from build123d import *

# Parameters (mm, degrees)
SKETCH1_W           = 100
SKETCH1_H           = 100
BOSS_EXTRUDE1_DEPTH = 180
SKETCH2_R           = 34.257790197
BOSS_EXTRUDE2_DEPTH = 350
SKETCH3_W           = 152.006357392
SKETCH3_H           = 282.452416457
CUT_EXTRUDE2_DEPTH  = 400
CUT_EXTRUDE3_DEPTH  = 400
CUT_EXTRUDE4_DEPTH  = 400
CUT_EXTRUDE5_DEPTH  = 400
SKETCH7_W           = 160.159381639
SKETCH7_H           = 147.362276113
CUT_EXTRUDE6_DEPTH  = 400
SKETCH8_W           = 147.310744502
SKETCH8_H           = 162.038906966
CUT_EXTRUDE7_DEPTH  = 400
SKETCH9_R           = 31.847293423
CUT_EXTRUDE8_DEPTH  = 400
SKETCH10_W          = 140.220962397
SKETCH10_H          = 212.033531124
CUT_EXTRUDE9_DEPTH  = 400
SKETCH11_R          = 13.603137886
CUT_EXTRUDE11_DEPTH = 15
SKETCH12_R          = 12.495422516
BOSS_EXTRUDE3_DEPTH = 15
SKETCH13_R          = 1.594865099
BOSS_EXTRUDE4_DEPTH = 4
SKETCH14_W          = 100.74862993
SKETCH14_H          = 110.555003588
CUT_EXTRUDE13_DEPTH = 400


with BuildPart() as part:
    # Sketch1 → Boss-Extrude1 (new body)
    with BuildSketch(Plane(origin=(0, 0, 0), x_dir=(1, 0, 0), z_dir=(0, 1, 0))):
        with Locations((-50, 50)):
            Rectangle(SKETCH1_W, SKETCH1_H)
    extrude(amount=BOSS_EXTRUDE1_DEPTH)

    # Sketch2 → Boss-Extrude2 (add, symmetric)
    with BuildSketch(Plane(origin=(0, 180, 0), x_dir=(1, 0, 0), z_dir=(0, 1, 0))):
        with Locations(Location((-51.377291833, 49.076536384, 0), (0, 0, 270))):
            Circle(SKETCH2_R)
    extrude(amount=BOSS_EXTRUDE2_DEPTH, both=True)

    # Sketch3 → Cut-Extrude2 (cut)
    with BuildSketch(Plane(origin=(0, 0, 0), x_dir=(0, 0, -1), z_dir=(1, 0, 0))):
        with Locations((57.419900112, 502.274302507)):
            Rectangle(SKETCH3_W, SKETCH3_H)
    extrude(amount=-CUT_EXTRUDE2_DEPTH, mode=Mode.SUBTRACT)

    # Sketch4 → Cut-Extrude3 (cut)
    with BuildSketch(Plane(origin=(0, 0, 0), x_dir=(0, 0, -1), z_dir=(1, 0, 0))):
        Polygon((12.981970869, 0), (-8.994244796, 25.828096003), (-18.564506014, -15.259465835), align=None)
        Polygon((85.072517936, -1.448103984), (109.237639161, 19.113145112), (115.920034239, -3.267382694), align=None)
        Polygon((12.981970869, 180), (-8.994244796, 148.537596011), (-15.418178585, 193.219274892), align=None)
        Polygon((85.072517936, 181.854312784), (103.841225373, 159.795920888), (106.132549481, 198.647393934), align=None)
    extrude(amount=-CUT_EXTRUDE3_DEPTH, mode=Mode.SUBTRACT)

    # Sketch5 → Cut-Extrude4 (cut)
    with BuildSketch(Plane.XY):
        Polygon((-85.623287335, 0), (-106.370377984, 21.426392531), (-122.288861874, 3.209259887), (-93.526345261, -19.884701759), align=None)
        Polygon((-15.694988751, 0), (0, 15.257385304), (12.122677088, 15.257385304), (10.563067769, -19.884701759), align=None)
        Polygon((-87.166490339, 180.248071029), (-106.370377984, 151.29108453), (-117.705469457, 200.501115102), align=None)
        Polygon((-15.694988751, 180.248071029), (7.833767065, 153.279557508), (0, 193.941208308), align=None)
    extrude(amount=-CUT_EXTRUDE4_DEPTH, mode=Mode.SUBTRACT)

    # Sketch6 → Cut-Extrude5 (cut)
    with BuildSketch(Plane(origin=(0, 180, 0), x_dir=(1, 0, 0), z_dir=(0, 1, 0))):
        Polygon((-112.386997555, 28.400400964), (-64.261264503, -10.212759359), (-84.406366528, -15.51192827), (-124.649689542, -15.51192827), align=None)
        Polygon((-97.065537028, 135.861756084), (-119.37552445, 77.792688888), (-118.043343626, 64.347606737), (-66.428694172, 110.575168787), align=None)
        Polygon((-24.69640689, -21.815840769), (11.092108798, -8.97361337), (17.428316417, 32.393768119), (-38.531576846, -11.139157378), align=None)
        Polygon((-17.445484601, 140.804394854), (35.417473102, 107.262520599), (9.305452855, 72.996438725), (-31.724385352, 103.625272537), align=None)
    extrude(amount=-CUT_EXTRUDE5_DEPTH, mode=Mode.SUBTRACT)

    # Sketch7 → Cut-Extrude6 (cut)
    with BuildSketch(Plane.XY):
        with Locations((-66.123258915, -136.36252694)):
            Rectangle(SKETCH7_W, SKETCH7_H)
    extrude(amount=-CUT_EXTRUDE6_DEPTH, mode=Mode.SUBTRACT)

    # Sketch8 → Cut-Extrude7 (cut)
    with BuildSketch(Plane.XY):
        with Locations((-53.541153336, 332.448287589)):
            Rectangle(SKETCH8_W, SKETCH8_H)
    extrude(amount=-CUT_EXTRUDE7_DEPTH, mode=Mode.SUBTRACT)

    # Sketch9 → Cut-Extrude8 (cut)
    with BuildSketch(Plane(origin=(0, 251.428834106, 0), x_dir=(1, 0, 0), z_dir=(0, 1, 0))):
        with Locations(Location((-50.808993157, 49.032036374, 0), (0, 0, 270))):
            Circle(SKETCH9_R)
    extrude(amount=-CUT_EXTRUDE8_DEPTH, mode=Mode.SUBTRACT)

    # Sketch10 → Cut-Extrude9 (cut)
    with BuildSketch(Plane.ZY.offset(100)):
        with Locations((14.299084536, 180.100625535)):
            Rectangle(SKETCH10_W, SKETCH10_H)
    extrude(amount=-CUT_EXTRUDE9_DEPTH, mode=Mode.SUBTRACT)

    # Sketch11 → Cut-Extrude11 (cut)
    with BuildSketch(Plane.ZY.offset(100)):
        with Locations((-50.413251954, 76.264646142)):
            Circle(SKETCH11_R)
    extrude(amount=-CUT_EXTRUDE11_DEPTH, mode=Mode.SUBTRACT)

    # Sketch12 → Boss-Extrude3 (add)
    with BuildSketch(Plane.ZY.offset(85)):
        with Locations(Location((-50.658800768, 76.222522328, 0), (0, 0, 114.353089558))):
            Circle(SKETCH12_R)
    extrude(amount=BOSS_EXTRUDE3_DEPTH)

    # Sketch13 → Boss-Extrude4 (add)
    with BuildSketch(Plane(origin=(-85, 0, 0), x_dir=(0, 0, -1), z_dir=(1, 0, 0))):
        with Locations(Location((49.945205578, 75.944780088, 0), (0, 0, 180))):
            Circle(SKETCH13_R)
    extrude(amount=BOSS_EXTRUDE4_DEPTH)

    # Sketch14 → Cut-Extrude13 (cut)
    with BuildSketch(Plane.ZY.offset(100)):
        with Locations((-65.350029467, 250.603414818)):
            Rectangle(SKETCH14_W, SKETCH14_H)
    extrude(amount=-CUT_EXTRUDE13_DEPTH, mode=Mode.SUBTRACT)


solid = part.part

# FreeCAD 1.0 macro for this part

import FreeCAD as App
import Part
import Sketcher
from FreeCAD import Vector
Q = App.Units.Quantity


def add_polygon(sketch, points):
    """Adds a closed chain of lines whose ends are joined by coincident constraints."""
    first, n = sketch.GeometryCount, len(points)
    for a, b in zip(points, points[1:] + points[:1]):
        sketch.addGeometry(Part.LineSegment(App.Vector(*a, 0), App.Vector(*b, 0)), False)
    for i in range(n):
        sketch.addConstraint(Sketcher.Constraint("Coincident", first + i, 2, first + (i + 1) % n, 1))

doc = App.newDocument("Part")
body = doc.addObject("PartDesign::Body", "Body")

# Sketch on XZ plane
sketch1 = doc.addObject("Sketcher::SketchObject", "Sketch")
body.addObject(sketch1)
sketch1.AttachmentSupport = (doc.XZ_Plane, [""])
sketch1.MapMode = "FlatFace"
add_polygon(sketch1, [(-100, -100), (-100, 0), (0, 0), (0, -100)])  # lines 0-3
sketch1.addConstraint(Sketcher.Constraint("Vertical", 0))
sketch1.addConstraint(Sketcher.Constraint("Horizontal", 1))
sketch1.addConstraint(Sketcher.Constraint("Vertical", 2))
sketch1.addConstraint(Sketcher.Constraint("Horizontal", 3))
sketch1.addConstraint(Sketcher.Constraint("Coincident", 1, 2, -1, 1))
sketch1.addConstraint(Sketcher.Constraint("Equal", 3, 0))
sketch1.addConstraint(Sketcher.Constraint("DistanceX", 1, 1, 1, 2, Q("100 mm")))
pad1 = doc.addObject("PartDesign::Pad", "Pad")
body.addObject(pad1)
pad1.Profile = sketch1
pad1.Length = 180
pad1.Reversed = True

# Sketch on XZ plane
sketch2 = doc.addObject("Sketcher::SketchObject", "Sketch001")
body.addObject(sketch2)
sketch2.AttachmentSupport = (doc.XZ_Plane, [""])
sketch2.MapMode = "FlatFace"
sketch2.AttachmentOffset = App.Placement(Vector(0, 0, -180), App.Rotation())
sketch2.addGeometry(Part.Circle(Vector(-51, -49, 0), Vector(0, 0, 1), 34), False)
sketch2.addConstraint(Sketcher.Constraint("Diameter", 0, Q("68.51558 mm")))
sketch2.addConstraint(Sketcher.Constraint("DistanceX", 0, 3, -1, 1, Q("51.377292 mm")))
sketch2.addConstraint(Sketcher.Constraint("DistanceY", 0, 3, -1, 1, Q("49.076536 mm")))
pad2 = doc.addObject("PartDesign::Pad", "Pad001")
body.addObject(pad2)
pad2.Profile = sketch2
pad2.Length = 700
pad2.Midplane = True

# Sketch on YZ plane
sketch3 = doc.addObject("Sketcher::SketchObject", "Sketch002")
body.addObject(sketch3)
sketch3.AttachmentSupport = (doc.YZ_Plane, [""])
sketch3.MapMode = "FlatFace"
add_polygon(sketch3, [(644, 19), (361, 19), (361, -133), (644, -133)])  # lines 0-3
sketch3.addConstraint(Sketcher.Constraint("Horizontal", 0))
sketch3.addConstraint(Sketcher.Constraint("Vertical", 1))
sketch3.addConstraint(Sketcher.Constraint("Horizontal", 2))
sketch3.addConstraint(Sketcher.Constraint("Vertical", 3))
sketch3.addConstraint(Sketcher.Constraint("DistanceX", 0, 2, 0, 1, Q("282.452416 mm")))
sketch3.addConstraint(Sketcher.Constraint("DistanceY", 1, 2, 1, 1, Q("152.006357 mm")))
sketch3.addConstraint(Sketcher.Constraint("DistanceY", -1, 1, 0, 2, Q("18.583279 mm")))
sketch3.addConstraint(Sketcher.Constraint("DistanceX", -1, 1, 2, 2, Q("643.500511 mm")))
pocket1 = doc.addObject("PartDesign::Pocket", "Pocket")
body.addObject(pocket1)
pocket1.Profile = sketch3
pocket1.Length = 400

# Sketch on YZ plane
sketch4 = doc.addObject("Sketcher::SketchObject", "Sketch003")
body.addObject(sketch4)
sketch4.AttachmentSupport = (doc.YZ_Plane, [""])
sketch4.MapMode = "FlatFace"
add_polygon(sketch4, [(0, -13), (26, 9), (-15, 19)])  # lines 0-2
add_polygon(sketch4, [(19, -109), (-1, -85), (-3, -116)])  # lines 3-5
add_polygon(sketch4, [(149, 9), (180, -13), (193, 15)])  # lines 6-8
add_polygon(sketch4, [(182, -85), (160, -104), (199, -106)])  # lines 9-11
sketch4.addConstraint(Sketcher.Constraint("PointOnObject", 2, 2, -2))
sketch4.addConstraint(Sketcher.Constraint("Perpendicular", 0, 3))
sketch4.addConstraint(Sketcher.Constraint("Perpendicular", 3, 9))
sketch4.addConstraint(Sketcher.Constraint("Perpendicular", 4, 10))
sketch4.addConstraint(Sketcher.Constraint("Horizontal", 2, 2, 6, 2))
sketch4.addConstraint(Sketcher.Constraint("Horizontal", 0, 2, 8, 2))
sketch4.addConstraint(Sketcher.Constraint("Horizontal", 3, 2, 11, 2))
sketch4.addConstraint(Sketcher.Constraint("DistanceX", -1, 1, 6, 2, Q("180 mm")))
sketch4.addConstraint(Sketcher.Constraint("DistanceX", 3, 2, 0, 2, Q("27.2762 mm")))
sketch4.addConstraint(Sketcher.Constraint("DistanceX", 0, 2, 8, 2, Q("122.7095 mm")))
sketch4.addConstraint(Sketcher.Constraint("Distance", 1, Q("42.187411 mm")))
sketch4.addConstraint(Sketcher.Constraint("Distance", 2, Q("35.04328 mm")))
sketch4.addConstraint(Sketcher.Constraint("Distance", 3, Q("31.72882 mm")))
sketch4.addConstraint(Sketcher.Constraint("Distance", 5, Q("23.35685 mm")))
sketch4.addConstraint(Sketcher.Constraint("Distance", 7, Q("31.325991 mm")))
sketch4.addConstraint(Sketcher.Constraint("Distance", 10, Q("38.918982 mm")))
sketch4.addConstraint(Sketcher.Constraint("Distance", 11, Q("26.935711 mm")))
sketch4.addConstraint(Sketcher.Constraint("DistanceY", 2, 2, -1, 1, Q("12.981971 mm")))
sketch4.addConstraint(Sketcher.Constraint("DistanceY", 5, 2, -1, 1, Q("109.237639 mm")))
sketch4.addConstraint(Sketcher.Constraint("DistanceY", -1, 1, 7, 2, Q("15.418179 mm")))
sketch4.addConstraint(Sketcher.Constraint("DistanceX", -1, 1, 9, 2, Q("159.795921 mm")))
sketch4.addConstraint(Sketcher.Constraint("DistanceY", 10, 2, -1, 1, Q("106.132549 mm")))
sketch4.addConstraint(Sketcher.Constraint("DistanceX", 1, 2, 0, 2, Q("41.087562 mm")))
sketch4.addConstraint(Sketcher.Constraint("DistanceX", 4, 2, 3, 2, Q("1.819279 mm")))
pocket2 = doc.addObject("PartDesign::Pocket", "Pocket001")
body.addObject(pocket2)
pocket2.Profile = sketch4
pocket2.Length = 400

# Sketch on XY plane
sketch5 = doc.addObject("Sketcher::SketchObject", "Sketch004")
body.addObject(sketch5)
sketch5.AttachmentSupport = (doc.XY_Plane, [""])
sketch5.MapMode = "FlatFace"
add_polygon(sketch5, [(-86, 0), (-106, 21), (-122, 3), (-94, -20)])  # lines 0-3
add_polygon(sketch5, [(0, 15), (-16, 0), (11, -20), (12, 15)])  # lines 4-7
add_polygon(sketch5, [(-106, 151), (-87, 180), (-118, 201)])  # lines 8-10
add_polygon(sketch5, [(-16, 180), (8, 153), (0, 194)])  # lines 11-13
sketch5.addConstraint(Sketcher.Constraint("Horizontal", 7))
sketch5.addConstraint(Sketcher.Constraint("PointOnObject", 3, 2, -1))
sketch5.addConstraint(Sketcher.Constraint("PointOnObject", 4, 2, -1))
sketch5.addConstraint(Sketcher.Constraint("PointOnObject", 7, 2, -2))
sketch5.addConstraint(Sketcher.Constraint("PointOnObject", 12, 2, -2))
sketch5.addConstraint(Sketcher.Constraint("Perpendicular", 8, 9))
sketch5.addConstraint(Sketcher.Constraint("Perpendicular", 11, 13))
sketch5.addConstraint(Sketcher.Constraint("Horizontal", 2, 2, 5, 2))
sketch5.addConstraint(Sketcher.Constraint("Horizontal", 8, 2, 13, 2))
sketch5.addConstraint(Sketcher.Constraint("Vertical", 0, 2, 10, 2))
sketch5.addConstraint(Sketcher.Constraint("Vertical", 4, 2, 13, 2))
sketch5.addConstraint(Sketcher.Constraint("Angle", 4, Q("-135.809992 deg")))
sketch5.addConstraint(Sketcher.Constraint("Distance", 13, Q("20.828698 mm")))
sketch5.addConstraint(Sketcher.Constraint("DistanceY", 2, 2, -1, 1, Q("19.884702 mm")))
sketch5.addConstraint(Sketcher.Constraint("DistanceX", 3, 2, 4, 2, Q("69.928299 mm")))
sketch5.addConstraint(Sketcher.Constraint("DistanceX", 8, 2, 13, 2, Q("71.471502 mm")))
sketch5.addConstraint(Sketcher.Constraint("Distance", 1, Q("24.19219 mm")))
sketch5.addConstraint(Sketcher.Constraint("Distance", 4, Q("21.888821 mm")))
sketch5.addConstraint(Sketcher.Constraint("Distance", 5, Q("32.937621 mm")))
sketch5.addConstraint(Sketcher.Constraint("Distance", 8, Q("34.746171 mm")))
sketch5.addConstraint(Sketcher.Constraint("Distance", 9, Q("36.644441 mm")))
sketch5.addConstraint(Sketcher.Constraint("DistanceX", 7, 2, 7, 1, Q("12.122677 mm")))
sketch5.addConstraint(Sketcher.Constraint("DistanceX", 1, 2, -1, 1, Q("122.288862 mm")))
sketch5.addConstraint(Sketcher.Constraint("DistanceY", -1, 1, 1, 2, Q("3.20926 mm")))
sketch5.addConstraint(Sketcher.Constraint("DistanceY", -1, 1, 8, 2, Q("180.248071 mm")))
sketch5.addConstraint(Sketcher.Constraint("DistanceX", 9, 2, -1, 1, Q("117.705469 mm")))
sketch5.addConstraint(Sketcher.Constraint("DistanceX", 11, 2, 6, 2, Q("4.28891 mm")))
sketch5.addConstraint(Sketcher.Constraint("Distance", 2, Q("36.886494 mm")))
pocket3 = doc.addObject("PartDesign::Pocket", "Pocket002")
body.addObject(pocket3)
pocket3.Profile = sketch5
pocket3.Length = 400

# Sketch on XZ plane
sketch6 = doc.addObject("Sketcher::SketchObject", "Sketch005")
body.addObject(sketch6)
sketch6.AttachmentSupport = (doc.XZ_Plane, [""])
sketch6.MapMode = "FlatFace"
sketch6.AttachmentOffset = App.Placement(Vector(0, 0, -180), App.Rotation())
add_polygon(sketch6, [(-64, 10), (-112, -28), (-125, 16), (-84, 16)])  # lines 0-3
add_polygon(sketch6, [(-97, -136), (-119, -78), (-118, -64), (-66, -111)])  # lines 4-7
add_polygon(sketch6, [(-25, 22), (11, 9), (17, -32), (-39, 11)])  # lines 8-11
add_polygon(sketch6, [(35, -107), (-17, -141), (-32, -104), (9, -73)])  # lines 12-15
sketch6.addConstraint(Sketcher.Constraint("Horizontal", 2))
sketch6.addConstraint(Sketcher.Constraint("Distance", 13, Q("39.826802 mm")))
sketch6.addConstraint(Sketcher.Constraint("Distance", 14, Q("51.2013 mm")))
sketch6.addConstraint(Sketcher.Constraint("DistanceY", 0, 2, -1, 1, Q("28.400401 mm")))
sketch6.addConstraint(Sketcher.Constraint("DistanceX", 1, 2, 8, 2, Q("135.741798 mm")))
sketch6.addConstraint(Sketcher.Constraint("DistanceY", 6, 2, 9, 2, Q("78.181401 mm")))
sketch6.addConstraint(Sketcher.Constraint("DistanceY", 3, 2, 10, 2, Q("0.926398 mm")))
sketch6.addConstraint(Sketcher.Constraint("DistanceX", 12, 2, 9, 2, Q("34.873801 mm")))
sketch6.addConstraint(Sketcher.Constraint("DistanceX", 13, 2, 12, 2, Q("14.278901 mm")))
sketch6.addConstraint(Sketcher.Constraint("Distance", 3, Q("20.830418 mm")))
sketch6.addConstraint(Sketcher.Constraint("Distance", 4, Q("62.207332 mm")))
sketch6.addConstraint(Sketcher.Constraint("Distance", 5, Q("13.510919 mm")))
sketch6.addConstraint(Sketcher.Constraint("Distance", 6, Q("69.289678 mm")))
sketch6.addConstraint(Sketcher.Constraint("Distance", 15, Q("43.081341 mm")))
sketch6.addConstraint(Sketcher.Constraint("DistanceX", 2, 1, 2, 2, Q("40.243323 mm")))
sketch6.addConstraint(Sketcher.Constraint("DistanceX", 1, 2, -1, 1, Q("124.64969 mm")))
sketch6.addConstraint(Sketcher.Constraint("DistanceY", -1, 1, 1, 2, Q("15.511928 mm")))
sketch6.addConstraint(Sketcher.Constraint("DistanceY", -1, 1, 3, 2, Q("10.212759 mm")))
sketch6.addConstraint(Sketcher.Constraint("DistanceY", 4, 2, -1, 1, Q("77.792689 mm")))
sketch6.addConstraint(Sketcher.Constraint("DistanceY", 6, 2, -1, 1, Q("110.575169 mm")))
sketch6.addConstraint(Sketcher.Constraint("DistanceY", -1, 1, 11, 2, Q("21.815841 mm")))
sketch6.addConstraint(Sketcher.Constraint("DistanceY", 14, 2, -1, 1, Q("72.996439 mm")))
sketch6.addConstraint(Sketcher.Constraint("DistanceY", 15, 2, -1, 1, Q("107.262521 mm")))
sketch6.addConstraint(Sketcher.Constraint("DistanceX", 1, 2, 0, 2, Q("12.262692 mm")))
sketch6.addConstraint(Sketcher.Constraint("DistanceX", 4, 2, 3, 2, Q("55.11426 mm")))
sketch6.addConstraint(Sketcher.Constraint("DistanceX", 4, 2, 5, 2, Q("1.332181 mm")))
sketch6.addConstraint(Sketcher.Constraint("DistanceY", 7, 2, 5, 2, Q("71.514149 mm")))
sketch6.addConstraint(Sketcher.Constraint("DistanceY", 9, 2, 8, 2, Q("41.367381 mm")))
sketch6.addConstraint(Sketcher.Constraint("DistanceX", 3, 2, 9, 2, Q("81.689581 mm")))
sketch6.addConstraint(Sketcher.Constraint("DistanceX", 2, 2, 10, 2, Q("45.87479 mm")))
sketch6.addConstraint(Sketcher.Constraint("DistanceX", 10, 2, 11, 2, Q("13.83517 mm")))
sketch6.addConstraint(Sketcher.Constraint("DistanceY", 12, 2, 7, 2, Q("4.942639 mm")))
pocket4 = doc.addObject("PartDesign::Pocket", "Pocket003")
body.addObject(pocket4)
pocket4.Profile = sketch6
pocket4.Length = 400
pocket4.Reversed = True

# Sketch on XY plane
sketch7 = doc.addObject("Sketcher::SketchObject", "Sketch006")
body.addObject(sketch7)
sketch7.AttachmentSupport = (doc.XY_Plane, [""])
sketch7.MapMode = "FlatFace"
add_polygon(sketch7, [(-146, -63), (-146, -210), (14, -210), (14, -63)])  # lines 0-3
sketch7.addConstraint(Sketcher.Constraint("Vertical", 0))
sketch7.addConstraint(Sketcher.Constraint("Horizontal", 1))
sketch7.addConstraint(Sketcher.Constraint("Vertical", 2))
sketch7.addConstraint(Sketcher.Constraint("Horizontal", 3))
sketch7.addConstraint(Sketcher.Constraint("DistanceX", 1, 1, 1, 2, Q("160.159382 mm")))
sketch7.addConstraint(Sketcher.Constraint("DistanceY", 0, 2, 0, 1, Q("147.362276 mm")))
sketch7.addConstraint(Sketcher.Constraint("DistanceX", 0, 2, -1, 1, Q("146.20295 mm")))
sketch7.addConstraint(Sketcher.Constraint("DistanceY", 2, 2, -1, 1, Q("62.681389 mm")))
pocket5 = doc.addObject("PartDesign::Pocket", "Pocket004")
body.addObject(pocket5)
pocket5.Profile = sketch7
pocket5.Length = 400

# Sketch on XY plane
sketch8 = doc.addObject("Sketcher::SketchObject", "Sketch007")
body.addObject(sketch8)
sketch8.AttachmentSupport = (doc.XY_Plane, [""])
sketch8.MapMode = "FlatFace"
add_polygon(sketch8, [(-127, 413), (-127, 251), (20, 251), (20, 413)])  # lines 0-3
sketch8.addConstraint(Sketcher.Constraint("Vertical", 0))
sketch8.addConstraint(Sketcher.Constraint("Horizontal", 1))
sketch8.addConstraint(Sketcher.Constraint("Vertical", 2))
sketch8.addConstraint(Sketcher.Constraint("Horizontal", 3))
sketch8.addConstraint(Sketcher.Constraint("DistanceX", 1, 1, 1, 2, Q("147.310745 mm")))
sketch8.addConstraint(Sketcher.Constraint("DistanceY", 0, 2, 0, 1, Q("162.038907 mm")))
sketch8.addConstraint(Sketcher.Constraint("DistanceX", -1, 1, 1, 2, Q("20.114219 mm")))
sketch8.addConstraint(Sketcher.Constraint("DistanceY", -1, 1, 2, 2, Q("413.467741 mm")))
pocket6 = doc.addObject("PartDesign::Pocket", "Pocket005")
body.addObject(pocket6)
pocket6.Profile = sketch8
pocket6.Length = 400

# Sketch on XZ plane
sketch9 = doc.addObject("Sketcher::SketchObject", "Sketch008")
body.addObject(sketch9)
sketch9.AttachmentSupport = (doc.XZ_Plane, [""])
sketch9.MapMode = "FlatFace"
sketch9.AttachmentOffset = App.Placement(Vector(0, 0, -251.428834), App.Rotation())
sketch9.addGeometry(Part.Circle(Vector(-51, -49, 0), Vector(0, 0, 1), 32), False)
sketch9.addConstraint(Sketcher.Constraint("Diameter", 0, Q("63.694587 mm")))
sketch9.addConstraint(Sketcher.Constraint("DistanceX", 0, 3, -1, 1, Q("50.808993 mm")))
sketch9.addConstraint(Sketcher.Constraint("DistanceY", 0, 3, -1, 1, Q("49.032036 mm")))
pocket7 = doc.addObject("PartDesign::Pocket", "Pocket006")
body.addObject(pocket7)
pocket7.Profile = sketch9
pocket7.Length = 400
pocket7.Reversed = True

# Sketch on YZ plane
sketch10 = doc.addObject("Sketcher::SketchObject", "Sketch009")
body.addObject(sketch10)
sketch10.AttachmentSupport = (doc.YZ_Plane, [""])
sketch10.MapMode = "FlatFace"
sketch10.AttachmentOffset = App.Placement(Vector(0, 0, -100), App.Rotation())
add_polygon(sketch10, [(286, -56), (74, -56), (74, 84), (286, 84)])  # lines 0-3
sketch10.addConstraint(Sketcher.Constraint("Horizontal", 0))
sketch10.addConstraint(Sketcher.Constraint("Vertical", 1))
sketch10.addConstraint(Sketcher.Constraint("Horizontal", 2))
sketch10.addConstraint(Sketcher.Constraint("Vertical", 3))
sketch10.addConstraint(Sketcher.Constraint("DistanceX", 0, 2, 0, 1, Q("212.033531 mm")))
sketch10.addConstraint(Sketcher.Constraint("DistanceY", 1, 1, 1, 2, Q("140.220962 mm")))
sketch10.addConstraint(Sketcher.Constraint("DistanceX", -1, 1, 0, 2, Q("74.08386 mm")))
sketch10.addConstraint(Sketcher.Constraint("DistanceY", 0, 2, -1, 1, Q("55.811397 mm")))
pocket8 = doc.addObject("PartDesign::Pocket", "Pocket007")
body.addObject(pocket8)
pocket8.Profile = sketch10
pocket8.Length = 400
pocket8.Reversed = True

# Sketch on YZ plane
sketch11 = doc.addObject("Sketcher::SketchObject", "Sketch010")
body.addObject(sketch11)
sketch11.AttachmentSupport = (doc.YZ_Plane, [""])
sketch11.MapMode = "FlatFace"
sketch11.AttachmentOffset = App.Placement(Vector(0, 0, -100), App.Rotation())
sketch11.addGeometry(Part.Circle(Vector(76, -50, 0), Vector(0, 0, 1), 14), False)
sketch11.addConstraint(Sketcher.Constraint("Diameter", 0, Q("27.206276 mm")))
sketch11.addConstraint(Sketcher.Constraint("DistanceY", 0, 3, -1, 1, Q("50.413252 mm")))
sketch11.addConstraint(Sketcher.Constraint("DistanceX", -1, 1, 0, 3, Q("76.264646 mm")))
pocket9 = doc.addObject("PartDesign::Pocket", "Pocket008")
body.addObject(pocket9)
pocket9.Profile = sketch11
pocket9.Length = 15
pocket9.Reversed = True

# Sketch on YZ plane
sketch12 = doc.addObject("Sketcher::SketchObject", "Sketch011")
body.addObject(sketch12)
sketch12.AttachmentSupport = (doc.YZ_Plane, [""])
sketch12.MapMode = "FlatFace"
sketch12.AttachmentOffset = App.Placement(Vector(0, 0, -85), App.Rotation())
sketch12.addGeometry(Part.Circle(Vector(76, -51, 0), Vector(0, 0, 1), 12), False)
sketch12.addConstraint(Sketcher.Constraint("Diameter", 0, Q("24.990845 mm")))
sketch12.addConstraint(Sketcher.Constraint("DistanceY", 0, 3, -1, 1, Q("50.658801 mm")))
sketch12.addConstraint(Sketcher.Constraint("DistanceX", -1, 1, 0, 3, Q("76.222522 mm")))
pad3 = doc.addObject("PartDesign::Pad", "Pad002")
body.addObject(pad3)
pad3.Profile = sketch12
pad3.Length = 15
pad3.Reversed = True

# Sketch on YZ plane
sketch13 = doc.addObject("Sketcher::SketchObject", "Sketch012")
body.addObject(sketch13)
sketch13.AttachmentSupport = (doc.YZ_Plane, [""])
sketch13.MapMode = "FlatFace"
sketch13.AttachmentOffset = App.Placement(Vector(0, 0, -85), App.Rotation())
sketch13.addGeometry(Part.Circle(Vector(75.9, -49.9, 0), Vector(0, 0, 1), 1.6), False)
sketch13.addConstraint(Sketcher.Constraint("Diameter", 0, Q("3.18973 mm")))
sketch13.addConstraint(Sketcher.Constraint("DistanceX", -1, 1, 0, 3, Q("75.94478 mm")))
sketch13.addConstraint(Sketcher.Constraint("DistanceY", 0, 3, -1, 1, Q("49.945206 mm")))
pad4 = doc.addObject("PartDesign::Pad", "Pad003")
body.addObject(pad4)
pad4.Profile = sketch13
pad4.Length = 4

# Sketch on YZ plane
sketch14 = doc.addObject("Sketcher::SketchObject", "Sketch013")
body.addObject(sketch14)
sketch14.AttachmentSupport = (doc.YZ_Plane, [""])
sketch14.MapMode = "FlatFace"
sketch14.AttachmentOffset = App.Placement(Vector(0, 0, -100), App.Rotation())
add_polygon(sketch14, [(306, -116), (195, -116), (195, -15), (306, -15)])  # lines 0-3
sketch14.addConstraint(Sketcher.Constraint("Horizontal", 0))
sketch14.addConstraint(Sketcher.Constraint("Vertical", 1))
sketch14.addConstraint(Sketcher.Constraint("Horizontal", 2))
sketch14.addConstraint(Sketcher.Constraint("Vertical", 3))
sketch14.addConstraint(Sketcher.Constraint("DistanceY", 1, 1, 1, 2, Q("100.74863 mm")))
sketch14.addConstraint(Sketcher.Constraint("DistanceX", 0, 2, 0, 1, Q("110.555004 mm")))
sketch14.addConstraint(Sketcher.Constraint("DistanceX", -1, 1, 0, 2, Q("195.325913 mm")))
sketch14.addConstraint(Sketcher.Constraint("DistanceY", 0, 2, -1, 1, Q("115.724344 mm")))
pocket10 = doc.addObject("PartDesign::Pocket", "Pocket009")
body.addObject(pocket10)
pocket10.Profile = sketch14
pocket10.Length = 400
pocket10.Reversed = True

doc.recompute()
